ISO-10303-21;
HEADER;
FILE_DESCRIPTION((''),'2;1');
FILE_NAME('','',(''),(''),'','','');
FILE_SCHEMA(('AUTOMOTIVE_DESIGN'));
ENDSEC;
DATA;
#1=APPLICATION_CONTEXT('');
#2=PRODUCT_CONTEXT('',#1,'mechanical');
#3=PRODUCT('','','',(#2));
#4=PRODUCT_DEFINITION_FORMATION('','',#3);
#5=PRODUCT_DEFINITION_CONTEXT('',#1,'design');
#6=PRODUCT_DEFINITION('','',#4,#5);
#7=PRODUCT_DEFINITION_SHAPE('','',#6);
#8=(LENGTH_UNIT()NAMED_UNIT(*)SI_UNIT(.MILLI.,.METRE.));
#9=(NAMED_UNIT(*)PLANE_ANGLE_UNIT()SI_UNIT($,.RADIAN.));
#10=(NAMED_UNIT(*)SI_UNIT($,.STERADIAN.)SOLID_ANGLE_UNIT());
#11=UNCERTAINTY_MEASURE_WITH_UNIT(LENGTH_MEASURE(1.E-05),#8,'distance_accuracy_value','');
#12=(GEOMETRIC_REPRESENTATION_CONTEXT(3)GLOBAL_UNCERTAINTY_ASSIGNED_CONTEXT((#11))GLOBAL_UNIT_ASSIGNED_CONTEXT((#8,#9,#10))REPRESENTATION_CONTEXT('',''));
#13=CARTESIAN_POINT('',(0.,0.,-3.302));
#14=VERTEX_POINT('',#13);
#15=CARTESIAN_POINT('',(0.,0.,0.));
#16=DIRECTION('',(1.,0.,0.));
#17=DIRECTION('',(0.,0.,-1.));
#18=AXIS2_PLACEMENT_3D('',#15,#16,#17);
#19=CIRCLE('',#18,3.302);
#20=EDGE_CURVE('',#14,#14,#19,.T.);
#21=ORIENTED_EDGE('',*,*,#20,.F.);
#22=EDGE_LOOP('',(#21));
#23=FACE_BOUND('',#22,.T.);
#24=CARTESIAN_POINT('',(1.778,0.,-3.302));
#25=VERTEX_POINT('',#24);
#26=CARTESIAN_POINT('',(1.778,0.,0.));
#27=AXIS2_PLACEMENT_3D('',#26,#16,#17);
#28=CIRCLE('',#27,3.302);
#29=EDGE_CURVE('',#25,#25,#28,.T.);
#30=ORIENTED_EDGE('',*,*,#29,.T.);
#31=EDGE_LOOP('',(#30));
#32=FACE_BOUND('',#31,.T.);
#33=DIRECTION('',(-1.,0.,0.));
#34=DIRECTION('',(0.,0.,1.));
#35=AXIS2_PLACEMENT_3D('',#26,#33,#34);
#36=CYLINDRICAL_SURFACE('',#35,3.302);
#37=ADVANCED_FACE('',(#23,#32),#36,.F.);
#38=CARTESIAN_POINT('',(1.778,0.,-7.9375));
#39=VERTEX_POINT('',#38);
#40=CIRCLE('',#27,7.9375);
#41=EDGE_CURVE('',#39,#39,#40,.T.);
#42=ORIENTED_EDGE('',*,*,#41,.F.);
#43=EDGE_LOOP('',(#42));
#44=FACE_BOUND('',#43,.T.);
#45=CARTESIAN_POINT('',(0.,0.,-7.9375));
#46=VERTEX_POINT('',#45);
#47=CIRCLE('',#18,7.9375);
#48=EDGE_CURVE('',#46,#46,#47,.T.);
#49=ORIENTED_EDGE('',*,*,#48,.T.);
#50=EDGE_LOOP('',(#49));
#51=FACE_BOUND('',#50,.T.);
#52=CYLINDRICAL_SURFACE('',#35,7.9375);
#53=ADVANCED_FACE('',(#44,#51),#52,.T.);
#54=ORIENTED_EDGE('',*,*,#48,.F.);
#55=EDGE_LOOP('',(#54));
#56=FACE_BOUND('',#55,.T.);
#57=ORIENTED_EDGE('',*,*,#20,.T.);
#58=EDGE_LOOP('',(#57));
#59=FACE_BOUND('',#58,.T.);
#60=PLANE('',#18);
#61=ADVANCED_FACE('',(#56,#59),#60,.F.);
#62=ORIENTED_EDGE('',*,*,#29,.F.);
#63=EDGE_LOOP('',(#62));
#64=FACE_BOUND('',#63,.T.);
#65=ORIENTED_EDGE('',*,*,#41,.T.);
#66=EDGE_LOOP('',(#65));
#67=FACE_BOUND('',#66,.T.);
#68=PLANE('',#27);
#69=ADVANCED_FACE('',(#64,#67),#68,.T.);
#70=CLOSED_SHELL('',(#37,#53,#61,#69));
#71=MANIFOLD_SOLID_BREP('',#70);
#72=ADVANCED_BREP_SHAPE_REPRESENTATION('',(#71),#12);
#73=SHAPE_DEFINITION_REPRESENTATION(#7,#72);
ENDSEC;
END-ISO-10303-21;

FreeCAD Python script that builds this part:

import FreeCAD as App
import Part
import Sketcher
from FreeCAD import Vector
Q = App.Units.Quantity

doc = App.newDocument("Part")
body = doc.addObject("PartDesign::Body", "Body")

# Sketch on YZ plane
sketch1 = doc.addObject("Sketcher::SketchObject", "Sketch")
body.addObject(sketch1)
sketch1.AttachmentSupport = (doc.YZ_Plane, [""])
sketch1.MapMode = "FlatFace"
sketch1.addGeometry([
    Part.Circle(Vector(0, 0, 0), Vector(0, 0, 1), 7.9),
    Part.Circle(Vector(0, 0, 0), Vector(0, 0, 1), 3.3),
], False)
sketch1.addConstraint([
    Sketcher.Constraint("Coincident", 0, 3, -1, 1),
    Sketcher.Constraint("Coincident", 1, 3, -1, 1),
    Sketcher.Constraint("Diameter", 1, Q("0.26 in")),
    Sketcher.Constraint("Diameter", 0, Q("0.625 in")),
])
pad1 = doc.addObject("PartDesign::Pad", "Pad")
body.addObject(pad1)
pad1.Profile = sketch1
pad1.Length = Q("0.07 in")

doc.recompute()
